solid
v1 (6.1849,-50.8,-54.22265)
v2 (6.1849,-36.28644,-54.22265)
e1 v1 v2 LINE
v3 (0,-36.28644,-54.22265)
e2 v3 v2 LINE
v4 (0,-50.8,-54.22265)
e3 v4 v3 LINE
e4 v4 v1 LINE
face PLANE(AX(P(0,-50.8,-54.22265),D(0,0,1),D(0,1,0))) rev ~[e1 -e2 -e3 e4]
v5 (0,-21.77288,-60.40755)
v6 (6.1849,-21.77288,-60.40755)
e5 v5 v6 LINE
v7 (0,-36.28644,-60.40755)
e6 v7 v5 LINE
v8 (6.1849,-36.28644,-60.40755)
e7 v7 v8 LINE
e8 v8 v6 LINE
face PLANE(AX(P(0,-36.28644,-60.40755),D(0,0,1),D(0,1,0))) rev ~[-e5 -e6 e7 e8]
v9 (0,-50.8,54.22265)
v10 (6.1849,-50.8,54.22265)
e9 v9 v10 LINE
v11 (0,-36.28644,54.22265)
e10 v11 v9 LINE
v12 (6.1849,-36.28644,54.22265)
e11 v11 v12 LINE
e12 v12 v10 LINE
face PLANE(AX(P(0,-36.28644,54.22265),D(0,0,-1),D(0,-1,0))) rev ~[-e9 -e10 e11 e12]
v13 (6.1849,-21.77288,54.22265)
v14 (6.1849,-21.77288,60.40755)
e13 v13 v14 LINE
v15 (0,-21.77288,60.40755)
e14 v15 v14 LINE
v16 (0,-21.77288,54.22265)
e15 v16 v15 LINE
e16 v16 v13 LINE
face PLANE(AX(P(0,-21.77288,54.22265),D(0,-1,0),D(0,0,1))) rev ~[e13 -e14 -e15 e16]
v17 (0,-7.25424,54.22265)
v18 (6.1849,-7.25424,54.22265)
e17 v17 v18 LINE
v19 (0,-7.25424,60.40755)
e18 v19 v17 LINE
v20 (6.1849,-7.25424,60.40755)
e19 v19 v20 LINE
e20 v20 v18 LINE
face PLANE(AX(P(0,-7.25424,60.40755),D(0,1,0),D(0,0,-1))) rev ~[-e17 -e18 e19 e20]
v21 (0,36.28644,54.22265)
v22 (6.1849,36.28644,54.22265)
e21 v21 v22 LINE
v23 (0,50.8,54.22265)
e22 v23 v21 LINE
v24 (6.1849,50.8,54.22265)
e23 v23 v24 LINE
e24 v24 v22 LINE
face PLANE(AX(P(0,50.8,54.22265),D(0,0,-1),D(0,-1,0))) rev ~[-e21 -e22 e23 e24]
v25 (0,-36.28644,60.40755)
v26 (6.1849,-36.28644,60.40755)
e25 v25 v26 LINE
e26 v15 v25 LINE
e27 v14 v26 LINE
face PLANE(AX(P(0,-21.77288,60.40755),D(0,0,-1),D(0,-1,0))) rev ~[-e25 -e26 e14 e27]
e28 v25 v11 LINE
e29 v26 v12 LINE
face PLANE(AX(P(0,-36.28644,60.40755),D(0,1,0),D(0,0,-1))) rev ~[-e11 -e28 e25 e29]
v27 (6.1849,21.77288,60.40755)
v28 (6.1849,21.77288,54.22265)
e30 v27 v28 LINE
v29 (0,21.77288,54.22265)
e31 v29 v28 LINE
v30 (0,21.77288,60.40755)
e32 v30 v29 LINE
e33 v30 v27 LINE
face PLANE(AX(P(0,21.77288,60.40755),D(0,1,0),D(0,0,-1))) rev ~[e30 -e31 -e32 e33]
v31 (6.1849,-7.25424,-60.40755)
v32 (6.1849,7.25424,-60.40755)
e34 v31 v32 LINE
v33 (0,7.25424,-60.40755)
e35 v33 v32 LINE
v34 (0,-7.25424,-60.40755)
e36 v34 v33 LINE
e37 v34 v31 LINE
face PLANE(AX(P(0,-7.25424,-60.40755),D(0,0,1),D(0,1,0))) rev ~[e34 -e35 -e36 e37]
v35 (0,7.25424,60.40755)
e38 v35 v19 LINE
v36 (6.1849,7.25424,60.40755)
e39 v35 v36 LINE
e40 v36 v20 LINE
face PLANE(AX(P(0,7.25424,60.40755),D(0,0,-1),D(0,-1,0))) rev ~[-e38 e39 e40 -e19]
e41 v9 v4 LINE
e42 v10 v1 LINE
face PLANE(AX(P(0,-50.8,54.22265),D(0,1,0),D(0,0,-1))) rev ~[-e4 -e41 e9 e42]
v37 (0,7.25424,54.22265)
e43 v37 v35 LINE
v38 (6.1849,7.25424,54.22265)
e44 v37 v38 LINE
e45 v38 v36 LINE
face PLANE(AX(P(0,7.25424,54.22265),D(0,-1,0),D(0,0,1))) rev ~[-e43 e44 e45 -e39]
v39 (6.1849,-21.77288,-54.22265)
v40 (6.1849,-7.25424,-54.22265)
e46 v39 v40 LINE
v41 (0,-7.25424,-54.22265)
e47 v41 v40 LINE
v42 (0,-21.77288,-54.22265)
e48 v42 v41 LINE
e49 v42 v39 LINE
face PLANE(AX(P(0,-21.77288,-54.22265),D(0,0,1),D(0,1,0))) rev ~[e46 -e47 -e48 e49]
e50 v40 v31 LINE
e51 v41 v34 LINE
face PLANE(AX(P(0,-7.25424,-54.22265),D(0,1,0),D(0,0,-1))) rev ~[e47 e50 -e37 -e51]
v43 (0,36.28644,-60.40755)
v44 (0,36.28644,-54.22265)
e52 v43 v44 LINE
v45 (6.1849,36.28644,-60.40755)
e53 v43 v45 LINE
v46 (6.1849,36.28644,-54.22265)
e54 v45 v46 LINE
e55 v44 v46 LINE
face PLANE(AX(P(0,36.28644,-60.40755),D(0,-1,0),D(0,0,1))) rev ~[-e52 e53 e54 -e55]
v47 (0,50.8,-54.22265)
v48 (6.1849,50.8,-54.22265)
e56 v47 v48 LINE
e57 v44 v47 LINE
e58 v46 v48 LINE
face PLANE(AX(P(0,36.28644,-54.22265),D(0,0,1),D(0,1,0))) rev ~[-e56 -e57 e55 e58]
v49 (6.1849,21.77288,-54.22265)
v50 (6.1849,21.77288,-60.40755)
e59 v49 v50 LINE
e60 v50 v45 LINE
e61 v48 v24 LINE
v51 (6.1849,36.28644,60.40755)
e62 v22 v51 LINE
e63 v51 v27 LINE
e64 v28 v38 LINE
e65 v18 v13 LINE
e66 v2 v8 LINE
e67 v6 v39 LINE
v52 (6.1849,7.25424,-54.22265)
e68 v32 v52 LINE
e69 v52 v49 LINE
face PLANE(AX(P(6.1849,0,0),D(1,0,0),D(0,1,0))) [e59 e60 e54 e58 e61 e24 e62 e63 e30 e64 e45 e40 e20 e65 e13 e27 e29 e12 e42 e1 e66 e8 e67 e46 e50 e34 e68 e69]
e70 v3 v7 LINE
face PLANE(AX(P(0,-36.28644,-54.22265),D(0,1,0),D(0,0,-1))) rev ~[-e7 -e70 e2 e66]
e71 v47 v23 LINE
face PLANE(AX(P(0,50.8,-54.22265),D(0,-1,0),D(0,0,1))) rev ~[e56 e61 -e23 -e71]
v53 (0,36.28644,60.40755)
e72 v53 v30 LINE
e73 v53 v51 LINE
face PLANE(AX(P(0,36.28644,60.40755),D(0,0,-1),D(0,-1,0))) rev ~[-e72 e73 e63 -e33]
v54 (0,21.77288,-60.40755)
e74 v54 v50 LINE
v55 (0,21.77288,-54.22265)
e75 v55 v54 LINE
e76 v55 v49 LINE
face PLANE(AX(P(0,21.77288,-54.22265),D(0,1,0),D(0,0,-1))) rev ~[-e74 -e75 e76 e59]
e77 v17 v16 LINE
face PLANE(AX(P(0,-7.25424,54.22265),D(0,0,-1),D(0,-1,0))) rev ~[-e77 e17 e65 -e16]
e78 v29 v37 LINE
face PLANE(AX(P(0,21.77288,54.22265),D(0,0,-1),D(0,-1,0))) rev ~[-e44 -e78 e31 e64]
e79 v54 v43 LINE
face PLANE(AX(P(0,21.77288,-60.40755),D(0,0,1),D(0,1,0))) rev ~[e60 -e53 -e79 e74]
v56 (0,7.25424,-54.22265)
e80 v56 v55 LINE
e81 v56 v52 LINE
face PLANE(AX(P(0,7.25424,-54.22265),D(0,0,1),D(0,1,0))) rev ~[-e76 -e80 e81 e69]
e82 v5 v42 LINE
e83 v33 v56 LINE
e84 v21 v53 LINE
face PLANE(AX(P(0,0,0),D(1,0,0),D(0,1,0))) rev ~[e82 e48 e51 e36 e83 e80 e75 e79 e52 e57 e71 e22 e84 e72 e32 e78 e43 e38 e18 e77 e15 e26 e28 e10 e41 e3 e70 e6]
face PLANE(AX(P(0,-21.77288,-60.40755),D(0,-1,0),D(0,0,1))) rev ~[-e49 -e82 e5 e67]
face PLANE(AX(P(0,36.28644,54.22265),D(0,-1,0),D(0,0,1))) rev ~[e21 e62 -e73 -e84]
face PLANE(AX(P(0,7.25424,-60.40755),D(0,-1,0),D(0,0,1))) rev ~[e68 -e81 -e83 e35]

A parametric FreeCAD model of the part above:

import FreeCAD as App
import Part
import Sketcher

V = App.Vector


def add_polygon(sketch, points):
    """Adds a closed chain of lines whose ends are joined by coincident constraints."""
    first, n = sketch.GeometryCount, len(points)
    for a, b in zip(points, points[1:] + points[:1]):
        sketch.addGeometry(Part.LineSegment(App.Vector(*a, 0), App.Vector(*b, 0)), False)
    for i in range(n):
        sketch.addConstraint(Sketcher.Constraint("Coincident", first + i, 2, first + (i + 1) % n, 1))

doc = App.newDocument("Part")
params = doc.addObject("Spreadsheet::Sheet", "Params")
for row, (alias, value) in enumerate([
    ("pad1_length", "6.1849 mm"),
], start=1):
    params.set(f"A{row}", alias)
    params.set(f"B{row}", "=" + value)
    params.setAlias(f"B{row}", alias)

body = doc.addObject("PartDesign::Body", "Body")

# Sketch on YZ plane
sketch1 = body.newObject("Sketcher::SketchObject", "Sketch")
sketch1.AttachmentSupport = (doc.getObject("YZ_Plane"), [""])
sketch1.MapMode = "FlatFace"
add_polygon(sketch1, [(50.8, -54.22265), (50.8, 54.22265), (36.28644, 54.22265), (36.28644, 60.40755), (21.77288, 60.40755), (21.77288, 54.22265), (7.25424, 54.22265), (7.25424, 60.40755), (-7.25424, 60.40755), (-7.25424, 54.22265), (-21.77288, 54.22265), (-21.77288, 60.40755), (-36.28644, 60.40755), (-36.28644, 54.22265), (-50.8, 54.22265), (-50.8, -54.22265), (-36.28644, -54.22265), (-36.28644, -60.40755), (-21.77288, -60.40755), (-21.77288, -54.22265), (-7.25424, -54.22265), (-7.25424, -60.40755), (7.25424, -60.40755), (7.25424, -54.22265), (21.77288, -54.22265), (21.77288, -60.40755), (36.28644, -60.40755), (36.28644, -54.22265)])  # lines 0-27
sketch1.addConstraint([
    Sketcher.Constraint("Vertical", 0),
    Sketcher.Constraint("Horizontal", 1),
    Sketcher.Constraint("Vertical", 2),
    Sketcher.Constraint("Horizontal", 3),
    Sketcher.Constraint("Vertical", 4),
    Sketcher.Constraint("Horizontal", 5),
    Sketcher.Constraint("Vertical", 6),
    Sketcher.Constraint("Horizontal", 7),
    Sketcher.Constraint("Vertical", 8),
    Sketcher.Constraint("Horizontal", 9),
    Sketcher.Constraint("Vertical", 10),
    Sketcher.Constraint("Horizontal", 11),
    Sketcher.Constraint("Vertical", 12),
    Sketcher.Constraint("Horizontal", 13),
    Sketcher.Constraint("Vertical", 14),
    Sketcher.Constraint("Horizontal", 15),
    Sketcher.Constraint("Vertical", 16),
    Sketcher.Constraint("Horizontal", 17),
    Sketcher.Constraint("Vertical", 18),
    Sketcher.Constraint("Horizontal", 19),
    Sketcher.Constraint("Vertical", 20),
    Sketcher.Constraint("Horizontal", 21),
    Sketcher.Constraint("Vertical", 22),
    Sketcher.Constraint("Horizontal", 23),
    Sketcher.Constraint("Vertical", 24),
    Sketcher.Constraint("Horizontal", 25),
    Sketcher.Constraint("Vertical", 26),
    Sketcher.Constraint("Horizontal", 27),
    Sketcher.Constraint("Symmetric", 0, 2, 14, 2, -1, 1),
    Sketcher.Constraint("Symmetric", 2, 2, 16, 2, -1, 1),
    Sketcher.Constraint("Symmetric", 4, 2, 18, 2, -1, 1),
    Sketcher.Constraint("Symmetric", 6, 2, 20, 2, -1, 1),
    Sketcher.Constraint("Symmetric", 8, 2, 22, 2, -1, 1),
    Sketcher.Constraint("Symmetric", 10, 2, 24, 2, -1, 1),
    Sketcher.Constraint("Symmetric", 12, 2, 26, 2, -1, 1),
    Sketcher.Constraint("Symmetric", 5, 2, 8, 2, -2),
    Sketcher.Constraint("Symmetric", 3, 2, 10, 2, -2),
    Sketcher.Constraint("Symmetric", 1, 2, 12, 2, -2),
    Sketcher.Constraint("Horizontal", 1, 2, 4, 2),
    Sketcher.Constraint("Horizontal", 3, 2, 6, 2),
    Sketcher.Constraint("Equal", 1, 3),
    Sketcher.Constraint("DistanceX", -1, 1, 0, 2, 50.8),
    Sketcher.Constraint("DistanceY", 0, 1, 0, 2, 108.4453),
    Sketcher.Constraint("DistanceY", 2, 1, 2, 2, 6.1849),
    Sketcher.Constraint("DistanceX", 1, 2, 1, 1, 14.51356),
    Sketcher.Constraint("DistanceX", 5, 2, 5, 1, 14.51864),
])
pad1 = body.newObject("PartDesign::Pad", "Pad")
pad1.Profile = sketch1
pad1.setExpression("Length", "Params.pad1_length")

doc.recompute()
